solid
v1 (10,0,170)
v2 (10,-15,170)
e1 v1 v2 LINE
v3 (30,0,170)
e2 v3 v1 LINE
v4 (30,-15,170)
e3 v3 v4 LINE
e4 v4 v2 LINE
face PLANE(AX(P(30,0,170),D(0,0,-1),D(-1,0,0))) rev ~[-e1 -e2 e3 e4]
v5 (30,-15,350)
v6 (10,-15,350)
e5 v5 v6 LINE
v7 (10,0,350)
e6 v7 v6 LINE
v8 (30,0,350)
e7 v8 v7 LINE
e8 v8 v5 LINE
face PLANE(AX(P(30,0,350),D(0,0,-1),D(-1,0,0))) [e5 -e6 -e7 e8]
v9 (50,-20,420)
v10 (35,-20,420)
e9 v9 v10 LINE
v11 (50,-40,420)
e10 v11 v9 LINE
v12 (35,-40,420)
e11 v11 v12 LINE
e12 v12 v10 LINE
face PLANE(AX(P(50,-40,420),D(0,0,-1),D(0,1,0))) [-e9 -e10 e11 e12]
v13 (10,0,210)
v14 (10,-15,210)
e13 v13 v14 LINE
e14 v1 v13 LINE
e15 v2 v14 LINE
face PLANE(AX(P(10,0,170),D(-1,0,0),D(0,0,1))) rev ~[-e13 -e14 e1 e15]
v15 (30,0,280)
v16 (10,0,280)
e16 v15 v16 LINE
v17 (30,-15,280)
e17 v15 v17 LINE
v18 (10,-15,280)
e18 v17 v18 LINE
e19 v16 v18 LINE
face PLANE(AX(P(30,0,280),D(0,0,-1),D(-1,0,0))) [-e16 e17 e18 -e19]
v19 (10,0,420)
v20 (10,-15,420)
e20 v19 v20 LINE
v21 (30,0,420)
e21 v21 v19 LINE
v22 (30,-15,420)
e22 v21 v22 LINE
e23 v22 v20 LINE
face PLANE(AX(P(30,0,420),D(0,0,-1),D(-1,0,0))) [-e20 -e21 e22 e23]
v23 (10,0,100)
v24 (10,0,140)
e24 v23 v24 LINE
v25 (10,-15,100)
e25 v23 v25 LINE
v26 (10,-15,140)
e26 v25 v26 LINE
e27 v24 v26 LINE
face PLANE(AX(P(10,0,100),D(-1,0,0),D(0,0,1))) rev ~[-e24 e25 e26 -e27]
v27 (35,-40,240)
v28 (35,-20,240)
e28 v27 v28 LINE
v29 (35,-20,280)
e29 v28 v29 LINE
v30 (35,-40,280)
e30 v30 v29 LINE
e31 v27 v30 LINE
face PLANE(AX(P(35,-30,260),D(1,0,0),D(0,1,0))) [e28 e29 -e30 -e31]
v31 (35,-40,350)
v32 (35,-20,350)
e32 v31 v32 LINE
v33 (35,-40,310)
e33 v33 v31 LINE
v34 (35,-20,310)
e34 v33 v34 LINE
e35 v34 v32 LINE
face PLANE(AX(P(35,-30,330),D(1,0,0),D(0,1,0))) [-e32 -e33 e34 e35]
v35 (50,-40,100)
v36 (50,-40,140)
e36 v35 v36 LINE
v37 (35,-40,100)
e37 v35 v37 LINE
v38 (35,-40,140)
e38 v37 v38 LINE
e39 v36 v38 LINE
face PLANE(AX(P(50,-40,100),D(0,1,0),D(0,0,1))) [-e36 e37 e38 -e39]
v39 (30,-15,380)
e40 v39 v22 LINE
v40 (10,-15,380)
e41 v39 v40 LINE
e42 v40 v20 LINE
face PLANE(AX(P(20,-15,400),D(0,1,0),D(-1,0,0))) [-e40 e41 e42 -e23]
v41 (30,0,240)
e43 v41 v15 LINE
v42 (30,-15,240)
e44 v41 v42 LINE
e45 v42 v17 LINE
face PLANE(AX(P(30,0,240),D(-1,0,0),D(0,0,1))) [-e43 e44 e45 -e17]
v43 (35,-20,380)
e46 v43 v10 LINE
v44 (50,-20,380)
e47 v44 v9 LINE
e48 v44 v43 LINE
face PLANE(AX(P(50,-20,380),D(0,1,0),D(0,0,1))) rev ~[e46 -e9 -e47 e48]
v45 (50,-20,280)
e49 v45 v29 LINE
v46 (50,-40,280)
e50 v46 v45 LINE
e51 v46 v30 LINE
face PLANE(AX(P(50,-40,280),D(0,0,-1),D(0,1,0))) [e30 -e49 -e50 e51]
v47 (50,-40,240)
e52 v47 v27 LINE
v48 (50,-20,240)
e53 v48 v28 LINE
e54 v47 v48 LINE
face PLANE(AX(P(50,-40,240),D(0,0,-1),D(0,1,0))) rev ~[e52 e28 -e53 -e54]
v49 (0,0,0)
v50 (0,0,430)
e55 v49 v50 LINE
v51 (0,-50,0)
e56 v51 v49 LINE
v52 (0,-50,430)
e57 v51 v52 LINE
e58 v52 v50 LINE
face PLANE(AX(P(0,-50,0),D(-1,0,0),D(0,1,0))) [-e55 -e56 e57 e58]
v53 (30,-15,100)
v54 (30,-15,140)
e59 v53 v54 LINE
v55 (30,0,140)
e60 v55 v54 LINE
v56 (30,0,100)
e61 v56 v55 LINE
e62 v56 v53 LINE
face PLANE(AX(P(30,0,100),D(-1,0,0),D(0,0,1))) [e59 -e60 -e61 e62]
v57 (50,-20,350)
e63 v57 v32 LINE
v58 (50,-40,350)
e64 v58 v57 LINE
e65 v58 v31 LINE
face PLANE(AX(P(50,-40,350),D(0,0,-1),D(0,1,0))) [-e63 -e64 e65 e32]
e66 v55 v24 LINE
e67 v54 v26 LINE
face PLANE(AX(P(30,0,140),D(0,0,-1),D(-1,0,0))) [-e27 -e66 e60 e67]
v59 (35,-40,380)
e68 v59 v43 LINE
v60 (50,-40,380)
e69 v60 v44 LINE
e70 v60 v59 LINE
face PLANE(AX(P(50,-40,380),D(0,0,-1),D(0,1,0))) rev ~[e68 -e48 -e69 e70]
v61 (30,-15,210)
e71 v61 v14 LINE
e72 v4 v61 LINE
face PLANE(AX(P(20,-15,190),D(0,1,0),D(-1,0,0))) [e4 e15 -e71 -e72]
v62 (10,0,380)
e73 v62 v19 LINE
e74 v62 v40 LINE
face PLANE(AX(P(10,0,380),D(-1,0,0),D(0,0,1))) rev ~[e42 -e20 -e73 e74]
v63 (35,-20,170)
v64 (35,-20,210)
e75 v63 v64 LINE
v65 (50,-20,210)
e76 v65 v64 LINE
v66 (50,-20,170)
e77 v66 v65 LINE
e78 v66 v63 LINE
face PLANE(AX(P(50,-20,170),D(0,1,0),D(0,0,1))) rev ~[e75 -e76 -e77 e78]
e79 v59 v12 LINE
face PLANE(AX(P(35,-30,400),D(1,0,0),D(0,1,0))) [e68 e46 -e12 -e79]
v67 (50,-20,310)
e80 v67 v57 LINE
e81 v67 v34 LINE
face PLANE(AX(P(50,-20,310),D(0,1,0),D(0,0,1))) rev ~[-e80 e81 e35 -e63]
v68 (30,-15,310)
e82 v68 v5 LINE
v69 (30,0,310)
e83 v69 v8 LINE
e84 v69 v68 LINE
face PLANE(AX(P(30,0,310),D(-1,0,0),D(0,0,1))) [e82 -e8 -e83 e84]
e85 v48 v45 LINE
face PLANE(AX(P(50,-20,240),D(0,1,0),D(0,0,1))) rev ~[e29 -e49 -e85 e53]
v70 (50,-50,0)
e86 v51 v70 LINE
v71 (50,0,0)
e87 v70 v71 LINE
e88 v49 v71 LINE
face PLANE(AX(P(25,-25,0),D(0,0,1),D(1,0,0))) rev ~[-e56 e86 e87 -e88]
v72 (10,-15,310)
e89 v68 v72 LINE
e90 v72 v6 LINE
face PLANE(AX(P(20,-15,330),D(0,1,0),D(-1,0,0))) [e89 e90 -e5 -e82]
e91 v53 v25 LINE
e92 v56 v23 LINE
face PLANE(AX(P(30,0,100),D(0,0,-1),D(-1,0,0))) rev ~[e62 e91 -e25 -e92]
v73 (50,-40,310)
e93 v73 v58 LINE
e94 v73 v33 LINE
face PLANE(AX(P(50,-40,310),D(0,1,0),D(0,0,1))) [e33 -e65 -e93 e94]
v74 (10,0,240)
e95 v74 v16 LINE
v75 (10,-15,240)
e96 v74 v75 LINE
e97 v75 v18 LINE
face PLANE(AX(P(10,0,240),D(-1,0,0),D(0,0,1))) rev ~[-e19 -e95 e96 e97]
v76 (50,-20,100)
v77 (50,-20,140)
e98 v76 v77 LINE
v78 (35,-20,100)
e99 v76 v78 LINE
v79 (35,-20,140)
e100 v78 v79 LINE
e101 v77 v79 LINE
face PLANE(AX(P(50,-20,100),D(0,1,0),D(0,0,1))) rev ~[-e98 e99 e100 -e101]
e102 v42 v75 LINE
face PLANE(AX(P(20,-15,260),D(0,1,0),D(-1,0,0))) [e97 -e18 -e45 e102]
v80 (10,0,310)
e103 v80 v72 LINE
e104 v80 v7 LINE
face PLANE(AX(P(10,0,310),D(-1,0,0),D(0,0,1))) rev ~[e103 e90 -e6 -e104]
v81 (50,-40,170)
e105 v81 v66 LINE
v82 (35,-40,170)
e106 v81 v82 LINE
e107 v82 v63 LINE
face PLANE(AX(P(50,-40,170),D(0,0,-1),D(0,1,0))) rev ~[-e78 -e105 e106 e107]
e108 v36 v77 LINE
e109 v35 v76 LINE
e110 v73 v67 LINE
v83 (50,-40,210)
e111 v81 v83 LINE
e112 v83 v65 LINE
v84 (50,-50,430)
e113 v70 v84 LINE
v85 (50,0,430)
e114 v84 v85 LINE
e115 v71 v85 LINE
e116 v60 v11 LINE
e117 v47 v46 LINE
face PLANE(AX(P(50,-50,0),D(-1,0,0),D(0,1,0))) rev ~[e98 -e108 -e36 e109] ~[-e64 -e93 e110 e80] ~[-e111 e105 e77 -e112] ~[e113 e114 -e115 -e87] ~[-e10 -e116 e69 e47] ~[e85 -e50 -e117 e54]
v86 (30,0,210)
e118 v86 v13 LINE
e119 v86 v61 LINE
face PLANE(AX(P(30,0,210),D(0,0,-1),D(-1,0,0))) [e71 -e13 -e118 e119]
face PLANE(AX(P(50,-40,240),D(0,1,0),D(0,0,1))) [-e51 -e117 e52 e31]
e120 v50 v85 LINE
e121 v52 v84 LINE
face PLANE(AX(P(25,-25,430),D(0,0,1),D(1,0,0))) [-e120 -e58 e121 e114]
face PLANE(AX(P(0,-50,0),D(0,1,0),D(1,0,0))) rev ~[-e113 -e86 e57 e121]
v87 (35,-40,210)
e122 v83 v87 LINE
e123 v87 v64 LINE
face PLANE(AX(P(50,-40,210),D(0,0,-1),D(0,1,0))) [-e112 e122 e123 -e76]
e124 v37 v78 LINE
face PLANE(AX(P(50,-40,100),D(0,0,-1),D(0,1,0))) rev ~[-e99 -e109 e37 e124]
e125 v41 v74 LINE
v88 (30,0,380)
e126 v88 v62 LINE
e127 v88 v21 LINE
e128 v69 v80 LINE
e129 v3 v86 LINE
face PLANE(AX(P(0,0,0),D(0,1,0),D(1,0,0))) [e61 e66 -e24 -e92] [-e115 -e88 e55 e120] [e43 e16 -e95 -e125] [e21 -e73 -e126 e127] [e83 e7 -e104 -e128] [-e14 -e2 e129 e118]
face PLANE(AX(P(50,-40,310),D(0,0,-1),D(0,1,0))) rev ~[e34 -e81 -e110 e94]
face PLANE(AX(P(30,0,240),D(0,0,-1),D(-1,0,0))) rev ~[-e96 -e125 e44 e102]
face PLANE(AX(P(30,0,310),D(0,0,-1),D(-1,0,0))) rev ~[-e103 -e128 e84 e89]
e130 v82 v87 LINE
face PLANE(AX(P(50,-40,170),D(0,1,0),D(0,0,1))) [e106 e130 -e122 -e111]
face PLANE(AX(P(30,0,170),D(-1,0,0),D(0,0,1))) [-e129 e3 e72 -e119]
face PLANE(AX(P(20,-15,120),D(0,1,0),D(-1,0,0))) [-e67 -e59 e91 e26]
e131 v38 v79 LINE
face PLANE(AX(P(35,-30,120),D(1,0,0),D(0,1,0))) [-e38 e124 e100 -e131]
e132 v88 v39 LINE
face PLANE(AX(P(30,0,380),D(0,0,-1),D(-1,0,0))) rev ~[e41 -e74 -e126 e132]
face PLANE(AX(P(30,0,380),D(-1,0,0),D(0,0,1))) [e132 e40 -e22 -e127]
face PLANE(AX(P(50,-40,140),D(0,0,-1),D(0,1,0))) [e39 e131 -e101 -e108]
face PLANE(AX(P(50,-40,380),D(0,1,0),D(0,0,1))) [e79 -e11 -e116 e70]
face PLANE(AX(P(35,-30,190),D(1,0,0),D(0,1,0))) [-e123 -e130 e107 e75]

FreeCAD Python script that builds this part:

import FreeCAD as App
import Part
import Sketcher
Q = App.Units.Quantity


def add_polygon(sketch, points):
    """Adds a closed chain of lines whose ends are joined by coincident constraints."""
    first, n = sketch.GeometryCount, len(points)
    for a, b in zip(points, points[1:] + points[:1]):
        sketch.addGeometry(Part.LineSegment(App.Vector(*a, 0), App.Vector(*b, 0)), False)
    for i in range(n):
        sketch.addConstraint(Sketcher.Constraint("Coincident", first + i, 2, first + (i + 1) % n, 1))

doc = App.newDocument("Part")
body = doc.addObject("PartDesign::Body", "Body")

# Sketch on XY plane
sketch1 = doc.addObject("Sketcher::SketchObject", "Sketch")
body.addObject(sketch1)
sketch1.AttachmentSupport = (doc.XY_Plane, [""])
sketch1.MapMode = "FlatFace"
add_polygon(sketch1, [(0, 0), (0, -50), (50, -50), (50, 0)])  # lines 0-3
sketch1.addConstraint(Sketcher.Constraint("Vertical", 0))
sketch1.addConstraint(Sketcher.Constraint("Horizontal", 1))
sketch1.addConstraint(Sketcher.Constraint("Vertical", 2))
sketch1.addConstraint(Sketcher.Constraint("Horizontal", 3))
sketch1.addConstraint(Sketcher.Constraint("Coincident", 3, 2, -1, 1))
sketch1.addConstraint(Sketcher.Constraint("Equal", 3, 0))
sketch1.addConstraint(Sketcher.Constraint("DistanceX", 1, 1, 1, 2, Q("50 mm")))
pad1 = doc.addObject("PartDesign::Pad", "Pad")
body.addObject(pad1)
pad1.Profile = sketch1
pad1.Length = 430

# Sketch on YZ plane
sketch2 = doc.addObject("Sketcher::SketchObject", "Sketch001")
body.addObject(sketch2)
sketch2.AttachmentSupport = (doc.YZ_Plane, [""])
sketch2.MapMode = "FlatFace"
sketch2.AttachmentOffset = App.Placement(App.Vector(0, 0, 50), App.Rotation())
add_polygon(sketch2, [(-40, 420), (-40, 380), (-20, 380), (-20, 420)])  # lines 0-3
add_polygon(sketch2, [(-40, 350), (-40, 310), (-20, 310), (-20, 350)])  # lines 4-7
add_polygon(sketch2, [(-40, 280), (-40, 240), (-20, 240), (-20, 280)])  # lines 8-11
add_polygon(sketch2, [(-40, 210), (-40, 170), (-20, 170), (-20, 210)])  # lines 12-15
add_polygon(sketch2, [(-40, 140), (-40, 100), (-20, 100), (-20, 140)])  # lines 16-19
sketch2.addConstraint(Sketcher.Constraint("Vertical", 0))
sketch2.addConstraint(Sketcher.Constraint("Horizontal", 1))
sketch2.addConstraint(Sketcher.Constraint("Vertical", 2))
sketch2.addConstraint(Sketcher.Constraint("Horizontal", 3))
sketch2.addConstraint(Sketcher.Constraint("Vertical", 4))
sketch2.addConstraint(Sketcher.Constraint("Horizontal", 5))
sketch2.addConstraint(Sketcher.Constraint("Vertical", 6))
sketch2.addConstraint(Sketcher.Constraint("Horizontal", 7))
sketch2.addConstraint(Sketcher.Constraint("Vertical", 8))
sketch2.addConstraint(Sketcher.Constraint("Horizontal", 9))
sketch2.addConstraint(Sketcher.Constraint("Vertical", 10))
sketch2.addConstraint(Sketcher.Constraint("Horizontal", 11))
sketch2.addConstraint(Sketcher.Constraint("Vertical", 12))
sketch2.addConstraint(Sketcher.Constraint("Horizontal", 13))
sketch2.addConstraint(Sketcher.Constraint("Vertical", 14))
sketch2.addConstraint(Sketcher.Constraint("Horizontal", 15))
sketch2.addConstraint(Sketcher.Constraint("Vertical", 16))
sketch2.addConstraint(Sketcher.Constraint("Horizontal", 17))
sketch2.addConstraint(Sketcher.Constraint("Vertical", 18))
sketch2.addConstraint(Sketcher.Constraint("Horizontal", 19))
sketch2.addConstraint(Sketcher.Constraint("Vertical", 3, 2, 4, 2))
sketch2.addConstraint(Sketcher.Constraint("Vertical", 2, 2, 5, 2))
sketch2.addConstraint(Sketcher.Constraint("Vertical", 7, 2, 8, 2))
sketch2.addConstraint(Sketcher.Constraint("Vertical", 6, 2, 9, 2))
sketch2.addConstraint(Sketcher.Constraint("Vertical", 11, 2, 12, 2))
sketch2.addConstraint(Sketcher.Constraint("Vertical", 10, 2, 13, 2))
sketch2.addConstraint(Sketcher.Constraint("Vertical", 15, 2, 16, 2))
sketch2.addConstraint(Sketcher.Constraint("Vertical", 14, 2, 17, 2))
sketch2.addConstraint(Sketcher.Constraint("Equal", 2, 4))
sketch2.addConstraint(Sketcher.Constraint("Equal", 6, 8))
sketch2.addConstraint(Sketcher.Constraint("Equal", 10, 12))
sketch2.addConstraint(Sketcher.Constraint("Equal", 14, 16))
sketch2.addConstraint(Sketcher.Constraint("DistanceX", 1, 1, 1, 2, Q("20 mm")))
sketch2.addConstraint(Sketcher.Constraint("DistanceY", 0, 2, 0, 1, Q("40 mm")))
sketch2.addConstraint(Sketcher.Constraint("DistanceX", 0, 2, -1, 1, Q("40 mm")))
sketch2.addConstraint(Sketcher.Constraint("DistanceY", -1, 1, 0, 2, Q("380 mm")))
sketch2.addConstraint(Sketcher.Constraint("DistanceY", -1, 1, 4, 2, Q("310 mm")))
sketch2.addConstraint(Sketcher.Constraint("DistanceY", -1, 1, 8, 2, Q("240 mm")))
sketch2.addConstraint(Sketcher.Constraint("DistanceY", -1, 1, 12, 2, Q("170 mm")))
sketch2.addConstraint(Sketcher.Constraint("DistanceY", -1, 1, 16, 2, Q("100 mm")))
pocket1 = doc.addObject("PartDesign::Pocket", "Pocket")
body.addObject(pocket1)
pocket1.Profile = sketch2
pocket1.Length = 15

# Sketch on XZ plane
sketch3 = doc.addObject("Sketcher::SketchObject", "Sketch002")
body.addObject(sketch3)
sketch3.AttachmentSupport = (doc.XZ_Plane, [""])
sketch3.MapMode = "FlatFace"
add_polygon(sketch3, [(30, 420), (30, 380), (10, 380), (10, 420)])  # lines 0-3
add_polygon(sketch3, [(30, 350), (30, 310), (10, 310), (10, 350)])  # lines 4-7
add_polygon(sketch3, [(30, 280), (30, 240), (10, 240), (10, 280)])  # lines 8-11
add_polygon(sketch3, [(30, 210), (30, 170), (10, 170), (10, 210)])  # lines 12-15
add_polygon(sketch3, [(30, 140), (30, 100), (10, 100), (10, 140)])  # lines 16-19
sketch3.addConstraint(Sketcher.Constraint("Vertical", 0))
sketch3.addConstraint(Sketcher.Constraint("Horizontal", 1))
sketch3.addConstraint(Sketcher.Constraint("Vertical", 2))
sketch3.addConstraint(Sketcher.Constraint("Horizontal", 3))
sketch3.addConstraint(Sketcher.Constraint("Vertical", 4))
sketch3.addConstraint(Sketcher.Constraint("Horizontal", 5))
sketch3.addConstraint(Sketcher.Constraint("Vertical", 6))
sketch3.addConstraint(Sketcher.Constraint("Horizontal", 7))
sketch3.addConstraint(Sketcher.Constraint("Vertical", 8))
sketch3.addConstraint(Sketcher.Constraint("Horizontal", 9))
sketch3.addConstraint(Sketcher.Constraint("Vertical", 10))
sketch3.addConstraint(Sketcher.Constraint("Horizontal", 11))
sketch3.addConstraint(Sketcher.Constraint("Vertical", 12))
sketch3.addConstraint(Sketcher.Constraint("Horizontal", 13))
sketch3.addConstraint(Sketcher.Constraint("Vertical", 14))
sketch3.addConstraint(Sketcher.Constraint("Horizontal", 15))
sketch3.addConstraint(Sketcher.Constraint("Vertical", 16))
sketch3.addConstraint(Sketcher.Constraint("Horizontal", 17))
sketch3.addConstraint(Sketcher.Constraint("Vertical", 18))
sketch3.addConstraint(Sketcher.Constraint("Horizontal", 19))
sketch3.addConstraint(Sketcher.Constraint("Vertical", 3, 2, 4, 2))
sketch3.addConstraint(Sketcher.Constraint("Vertical", 2, 2, 5, 2))
sketch3.addConstraint(Sketcher.Constraint("Vertical", 7, 2, 8, 2))
sketch3.addConstraint(Sketcher.Constraint("Vertical", 6, 2, 9, 2))
sketch3.addConstraint(Sketcher.Constraint("Vertical", 11, 2, 12, 2))
sketch3.addConstraint(Sketcher.Constraint("Vertical", 10, 2, 13, 2))
sketch3.addConstraint(Sketcher.Constraint("Vertical", 15, 2, 16, 2))
sketch3.addConstraint(Sketcher.Constraint("Vertical", 14, 2, 17, 2))
sketch3.addConstraint(Sketcher.Constraint("Equal", 2, 4))
sketch3.addConstraint(Sketcher.Constraint("Equal", 6, 8))
sketch3.addConstraint(Sketcher.Constraint("Equal", 10, 12))
sketch3.addConstraint(Sketcher.Constraint("Equal", 14, 16))
sketch3.addConstraint(Sketcher.Constraint("DistanceX", 1, 2, 1, 1, Q("20 mm")))
sketch3.addConstraint(Sketcher.Constraint("DistanceY", 0, 2, 0, 1, Q("40 mm")))
sketch3.addConstraint(Sketcher.Constraint("DistanceX", -1, 1, 0, 2, Q("30 mm")))
sketch3.addConstraint(Sketcher.Constraint("DistanceY", -1, 1, 0, 2, Q("380 mm")))
sketch3.addConstraint(Sketcher.Constraint("DistanceY", -1, 1, 4, 2, Q("310 mm")))
sketch3.addConstraint(Sketcher.Constraint("DistanceY", -1, 1, 8, 2, Q("240 mm")))
sketch3.addConstraint(Sketcher.Constraint("DistanceY", -1, 1, 12, 2, Q("170 mm")))
sketch3.addConstraint(Sketcher.Constraint("DistanceY", -1, 1, 16, 2, Q("100 mm")))
pocket2 = doc.addObject("PartDesign::Pocket", "Pocket001")
body.addObject(pocket2)
pocket2.Profile = sketch3
pocket2.Length = 15
pocket2.Reversed = True

doc.recompute()
